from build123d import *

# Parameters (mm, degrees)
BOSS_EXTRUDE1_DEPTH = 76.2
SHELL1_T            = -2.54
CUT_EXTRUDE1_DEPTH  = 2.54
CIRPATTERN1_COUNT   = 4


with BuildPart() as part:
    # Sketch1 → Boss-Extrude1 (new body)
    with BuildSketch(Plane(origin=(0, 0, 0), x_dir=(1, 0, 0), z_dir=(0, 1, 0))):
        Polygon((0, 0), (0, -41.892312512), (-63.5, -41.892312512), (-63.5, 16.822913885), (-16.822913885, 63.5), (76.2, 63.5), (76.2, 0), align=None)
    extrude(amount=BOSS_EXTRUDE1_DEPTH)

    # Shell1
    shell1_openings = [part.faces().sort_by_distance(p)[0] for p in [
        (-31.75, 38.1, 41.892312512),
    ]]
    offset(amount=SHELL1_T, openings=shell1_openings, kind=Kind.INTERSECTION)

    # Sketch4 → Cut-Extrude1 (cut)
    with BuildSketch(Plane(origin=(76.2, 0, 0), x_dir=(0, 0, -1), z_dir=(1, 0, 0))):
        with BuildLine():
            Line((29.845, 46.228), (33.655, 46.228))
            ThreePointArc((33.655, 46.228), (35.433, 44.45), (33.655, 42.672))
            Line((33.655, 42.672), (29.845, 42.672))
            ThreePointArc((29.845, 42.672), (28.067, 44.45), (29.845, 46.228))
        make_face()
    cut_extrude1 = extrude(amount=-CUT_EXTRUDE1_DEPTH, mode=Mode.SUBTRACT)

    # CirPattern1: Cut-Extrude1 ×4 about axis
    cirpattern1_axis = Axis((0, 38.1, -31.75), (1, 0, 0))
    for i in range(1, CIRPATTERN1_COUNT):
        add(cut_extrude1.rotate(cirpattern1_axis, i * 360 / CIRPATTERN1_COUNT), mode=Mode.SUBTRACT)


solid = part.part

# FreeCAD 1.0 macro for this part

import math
import FreeCAD as App
import Part
import Sketcher
from FreeCAD import Vector
Q = App.Units.Quantity


def faces_at(feature, points):
    """Names of the faces that lie closest to the given points."""
    faces = feature.Shape.Faces
    near = lambda p: min(range(len(faces)), key=lambda i: faces[i].distToShape(Part.Vertex(*p))[0])
    return sorted({f"Face{near(p) + 1}" for p in points})


def add_polygon(sketch, points):
    """Adds a closed chain of lines whose ends are joined by coincident constraints."""
    first, n = sketch.GeometryCount, len(points)
    for a, b in zip(points, points[1:] + points[:1]):
        sketch.addGeometry(Part.LineSegment(App.Vector(*a, 0), App.Vector(*b, 0)), False)
    for i in range(n):
        sketch.addConstraint(Sketcher.Constraint("Coincident", first + i, 2, first + (i + 1) % n, 1))

doc = App.newDocument("Part")
body = doc.addObject("PartDesign::Body", "Body")

sketch1 = body.newObject("Sketcher::SketchObject", "Sketch")
sketch1.AttachmentSupport = (doc.getObject("XZ_Plane"), [""])
sketch1.MapMode = "FlatFace"
add_polygon(sketch1, [(0, 42), (0, 0), (76, 0), (76, -64), (-17, -64), (-64, -17), (-64, 42)])
sketch1.addConstraint([
    Sketcher.Constraint("Vertical", 0),
    Sketcher.Constraint("Horizontal", 1),
    Sketcher.Constraint("Vertical", 2),
    Sketcher.Constraint("Horizontal", 3),
    Sketcher.Constraint("Vertical", 5),
    Sketcher.Constraint("Horizontal", 6),
    Sketcher.Constraint("Coincident", 0, 2, -1, 1),
    Sketcher.Constraint("Equal", 6, 2),
    Sketcher.Constraint("DistanceX", 1, 1, 1, 2, Q("3 in")),
    Sketcher.Constraint("DistanceX", 6, 1, 6, 2, Q("2.5 in")),
    Sketcher.Constraint("Angle", 4, Q("135 deg")),
    Sketcher.Constraint("Distance", 4, 66.011368),
    Sketcher.Constraint("DistanceY", 0, 2, 0, 1, 41.892313),
])
pad1 = body.newObject("PartDesign::Pad", "Pad")
pad1.Profile = sketch1
pad1.Length = Q("3 in")
pad1.Reversed = True
doc.recompute()

thickness = body.newObject("PartDesign::Thickness", "Thickness")
thickness.Base = (pad1, faces_at(pad1, [(-31.75, 38.1, 41.892)]))
thickness.Value = Q("0.1 in")
thickness.Reversed = True
thickness.Join = "Intersection"

sketch2 = body.newObject("Sketcher::SketchObject", "Sketch001")
sketch2.AttachmentSupport = (doc.getObject("YZ_Plane"), [""])
sketch2.MapMode = "FlatFace"
sketch2.AttachmentOffset = App.Placement(Vector(0, 0, 3 * 25.4), App.Rotation())
sketch2.addGeometry([
    Part.LineSegment(Vector(46.2, -33.7, 0), Vector(46.2, -29.8, 0)),
    Part.ArcOfCircle(Part.Circle(Vector(44.5, -29.8, 0), Vector(0, 0, 1), 1.8), math.radians(0), math.radians(180)),
    Part.LineSegment(Vector(42.7, -29.8, 0), Vector(42.7, -33.7, 0)),
    Part.ArcOfCircle(Part.Circle(Vector(44.5, -33.7, 0), Vector(0, 0, 1), 1.8), math.radians(180), math.radians(360)),
], False)
sketch2.addConstraint([
    Sketcher.Constraint("Tangent", 0, 2, 1, 1),
    Sketcher.Constraint("Tangent", 1, 2, 2, 1),
    Sketcher.Constraint("Tangent", 2, 2, 3, 1),
    Sketcher.Constraint("Tangent", 3, 2, 0, 1),
    Sketcher.Constraint("Vertical", 0),
    Sketcher.Constraint("Vertical", 2),
    Sketcher.Constraint("Radius", 1, Q("0.07 in")),
    Sketcher.Constraint("DistanceY", 0, 1, 0, 2, Q("0.15 in")),
    Sketcher.Constraint("DistanceX", -1, 1, 1, 3, Q("1.75 in")),
    Sketcher.Constraint("DistanceY", 1, 3, -1, 1, Q("1.175 in")),
])
pocket1 = body.newObject("PartDesign::Pocket", "Pocket")
pocket1.Profile = sketch2
pocket1.Length = Q("0.1 in")
doc.recompute()

datumline = body.newObject("PartDesign::Line", "DatumLine")
datumline.Placement = App.Placement(Vector(0, 38.1, -31.75), App.Rotation(Vector(0, 0, 1), Vector(1, 0, 0)))
polarpattern = body.newObject("PartDesign::PolarPattern", "PolarPattern")
polarpattern.Originals = [pocket1]
polarpattern.Axis = (datumline, [""])
polarpattern.Angle = 360
polarpattern.Occurrences = 4
body.Tip = polarpattern

doc.recompute()
